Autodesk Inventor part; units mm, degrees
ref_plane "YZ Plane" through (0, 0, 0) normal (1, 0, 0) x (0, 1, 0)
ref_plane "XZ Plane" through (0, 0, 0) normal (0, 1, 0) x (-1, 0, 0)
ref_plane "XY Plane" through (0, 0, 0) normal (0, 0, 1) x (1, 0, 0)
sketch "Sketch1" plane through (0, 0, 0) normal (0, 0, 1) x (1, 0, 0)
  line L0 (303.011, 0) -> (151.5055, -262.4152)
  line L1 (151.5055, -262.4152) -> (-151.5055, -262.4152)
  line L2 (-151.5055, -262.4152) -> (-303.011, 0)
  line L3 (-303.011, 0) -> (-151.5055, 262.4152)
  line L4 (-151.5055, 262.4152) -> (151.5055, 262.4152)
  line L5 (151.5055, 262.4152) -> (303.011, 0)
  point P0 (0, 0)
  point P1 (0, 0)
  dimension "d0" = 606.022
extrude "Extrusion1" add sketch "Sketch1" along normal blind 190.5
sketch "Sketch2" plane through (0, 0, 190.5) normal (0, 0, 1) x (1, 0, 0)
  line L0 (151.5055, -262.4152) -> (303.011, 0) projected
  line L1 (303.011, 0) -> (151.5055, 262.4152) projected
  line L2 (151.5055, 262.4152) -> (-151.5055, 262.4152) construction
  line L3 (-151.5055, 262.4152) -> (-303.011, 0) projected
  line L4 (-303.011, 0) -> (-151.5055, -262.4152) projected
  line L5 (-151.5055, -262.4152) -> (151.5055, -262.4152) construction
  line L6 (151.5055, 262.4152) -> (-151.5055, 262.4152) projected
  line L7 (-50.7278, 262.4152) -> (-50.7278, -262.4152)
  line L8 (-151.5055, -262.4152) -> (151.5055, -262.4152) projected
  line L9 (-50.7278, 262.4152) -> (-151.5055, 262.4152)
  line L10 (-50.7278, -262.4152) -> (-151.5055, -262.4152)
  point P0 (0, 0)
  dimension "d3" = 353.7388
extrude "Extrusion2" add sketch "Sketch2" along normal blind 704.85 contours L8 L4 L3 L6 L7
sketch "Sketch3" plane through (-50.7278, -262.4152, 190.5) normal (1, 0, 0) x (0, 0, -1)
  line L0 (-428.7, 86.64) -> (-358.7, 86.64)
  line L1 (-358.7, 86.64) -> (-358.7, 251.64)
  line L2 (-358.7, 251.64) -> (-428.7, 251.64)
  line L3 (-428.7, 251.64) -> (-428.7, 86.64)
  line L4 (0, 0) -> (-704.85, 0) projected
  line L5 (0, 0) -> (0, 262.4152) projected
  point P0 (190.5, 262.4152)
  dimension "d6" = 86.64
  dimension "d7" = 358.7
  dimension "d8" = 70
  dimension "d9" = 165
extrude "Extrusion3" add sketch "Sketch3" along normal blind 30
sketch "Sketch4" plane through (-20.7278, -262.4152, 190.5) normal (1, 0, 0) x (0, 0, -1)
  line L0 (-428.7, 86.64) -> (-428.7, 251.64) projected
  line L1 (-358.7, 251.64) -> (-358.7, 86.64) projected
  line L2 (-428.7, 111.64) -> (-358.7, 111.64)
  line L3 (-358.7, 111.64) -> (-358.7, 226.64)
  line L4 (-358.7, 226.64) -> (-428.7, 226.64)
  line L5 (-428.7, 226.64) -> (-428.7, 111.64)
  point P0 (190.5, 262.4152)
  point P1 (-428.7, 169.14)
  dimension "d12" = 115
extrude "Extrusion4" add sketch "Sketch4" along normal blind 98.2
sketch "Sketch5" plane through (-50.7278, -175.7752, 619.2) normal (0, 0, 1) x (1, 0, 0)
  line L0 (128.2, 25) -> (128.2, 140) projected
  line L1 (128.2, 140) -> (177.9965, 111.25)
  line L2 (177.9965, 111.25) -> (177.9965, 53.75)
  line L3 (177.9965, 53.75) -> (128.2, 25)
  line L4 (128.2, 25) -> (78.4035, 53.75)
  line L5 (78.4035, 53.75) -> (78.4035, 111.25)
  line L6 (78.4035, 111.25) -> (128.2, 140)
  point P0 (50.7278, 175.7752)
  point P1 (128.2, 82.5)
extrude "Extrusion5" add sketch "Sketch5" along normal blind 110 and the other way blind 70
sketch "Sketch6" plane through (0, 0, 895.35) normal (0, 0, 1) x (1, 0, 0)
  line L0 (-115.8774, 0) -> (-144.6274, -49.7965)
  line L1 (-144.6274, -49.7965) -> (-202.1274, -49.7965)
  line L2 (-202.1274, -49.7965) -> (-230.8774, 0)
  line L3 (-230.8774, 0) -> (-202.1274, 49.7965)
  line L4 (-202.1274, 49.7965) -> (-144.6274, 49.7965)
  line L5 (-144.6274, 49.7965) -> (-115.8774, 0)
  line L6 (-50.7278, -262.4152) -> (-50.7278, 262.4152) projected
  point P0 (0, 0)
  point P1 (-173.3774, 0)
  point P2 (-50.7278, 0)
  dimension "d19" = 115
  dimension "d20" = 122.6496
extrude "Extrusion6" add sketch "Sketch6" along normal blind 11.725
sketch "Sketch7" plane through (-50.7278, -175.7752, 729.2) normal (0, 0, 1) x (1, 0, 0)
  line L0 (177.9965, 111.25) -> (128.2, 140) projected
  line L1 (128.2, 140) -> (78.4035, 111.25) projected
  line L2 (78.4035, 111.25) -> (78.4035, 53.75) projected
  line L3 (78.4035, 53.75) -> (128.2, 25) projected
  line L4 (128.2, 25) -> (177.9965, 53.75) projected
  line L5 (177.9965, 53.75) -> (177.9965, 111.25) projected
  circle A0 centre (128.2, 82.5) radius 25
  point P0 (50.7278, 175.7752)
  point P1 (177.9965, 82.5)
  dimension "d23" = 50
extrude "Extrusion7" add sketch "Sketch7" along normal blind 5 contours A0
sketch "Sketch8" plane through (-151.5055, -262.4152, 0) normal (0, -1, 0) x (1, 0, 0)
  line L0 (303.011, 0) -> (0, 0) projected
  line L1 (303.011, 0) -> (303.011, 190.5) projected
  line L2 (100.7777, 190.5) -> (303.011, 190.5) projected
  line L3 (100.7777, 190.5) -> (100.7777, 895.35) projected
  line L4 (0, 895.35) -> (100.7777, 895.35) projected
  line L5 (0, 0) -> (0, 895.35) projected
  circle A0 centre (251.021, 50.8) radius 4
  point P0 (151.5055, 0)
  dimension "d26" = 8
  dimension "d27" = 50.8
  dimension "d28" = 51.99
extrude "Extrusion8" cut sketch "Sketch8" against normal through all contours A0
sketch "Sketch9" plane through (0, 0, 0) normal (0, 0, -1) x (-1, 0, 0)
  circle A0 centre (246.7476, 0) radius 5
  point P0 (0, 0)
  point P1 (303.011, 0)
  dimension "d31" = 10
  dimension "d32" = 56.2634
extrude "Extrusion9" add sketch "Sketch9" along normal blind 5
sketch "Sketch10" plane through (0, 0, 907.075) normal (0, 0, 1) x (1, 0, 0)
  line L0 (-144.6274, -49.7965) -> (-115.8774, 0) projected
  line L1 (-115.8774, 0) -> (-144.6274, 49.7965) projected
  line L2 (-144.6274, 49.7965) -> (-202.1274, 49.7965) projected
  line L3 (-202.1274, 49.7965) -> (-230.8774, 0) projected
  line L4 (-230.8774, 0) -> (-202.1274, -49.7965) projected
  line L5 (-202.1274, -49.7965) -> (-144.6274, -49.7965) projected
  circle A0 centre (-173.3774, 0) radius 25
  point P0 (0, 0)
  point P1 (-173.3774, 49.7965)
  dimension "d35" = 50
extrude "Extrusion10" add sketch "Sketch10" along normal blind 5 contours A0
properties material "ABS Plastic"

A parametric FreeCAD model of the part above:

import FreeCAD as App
import Part
import Sketcher
from FreeCAD import Vector
Q = App.Units.Quantity


def add_polygon(sketch, points):
    """Adds a closed chain of lines whose ends are joined by coincident constraints."""
    first, n = sketch.GeometryCount, len(points)
    for a, b in zip(points, points[1:] + points[:1]):
        sketch.addGeometry(Part.LineSegment(App.Vector(*a, 0), App.Vector(*b, 0)), False)
    for i in range(n):
        sketch.addConstraint(Sketcher.Constraint("Coincident", first + i, 2, first + (i + 1) % n, 1))

doc = App.newDocument("Part")
params = doc.addObject("Spreadsheet::Sheet", "Params")
for row, (alias, value) in enumerate([
    ("pad1_length", "190.5 mm"),
    ("pad2_length", "704.85 mm"),
    ("sketch3_width", "165 mm"),
    ("sketch3_height", "70 mm"),
    ("pad3_length", "30 mm"),
    ("sketch4_width", "115 mm"),
    ("sketch4_height", "70 mm"),
    ("pad4_length", "98.2 mm"),
    ("sketch5_height", "57.5 mm"),
    ("pad5_length", "110 mm"),
    ("pad5_length2", "70 mm"),
    ("sketch6_width", "57.5 mm"),
    ("pad6_length", "11.725 mm"),
    ("sketch7_diameter", "50 mm"),
    ("pad7_length", "5 mm"),
    ("sketch8_diameter", "8 mm"),
    ("sketch9_diameter", "10 mm"),
    ("pad8_length", "5 mm"),
    ("sketch10_diameter", "50 mm"),
    ("pad9_length", "5 mm"),
], start=1):
    params.set(f"A{row}", alias)
    params.set(f"B{row}", "=" + value)
    params.setAlias(f"B{row}", alias)

body = doc.addObject("PartDesign::Body", "Body")

# Sketch on XY plane
sketch1 = body.newObject("Sketcher::SketchObject", "Sketch")
sketch1.AttachmentSupport = (doc.getObject("XY_Plane"), [""])
sketch1.MapMode = "FlatFace"
add_polygon(sketch1, [(151.5055, -262.4152), (303.011, 0), (151.5055, 262.4152), (-151.5055, 262.4152), (-303.011, 0), (-151.5055, -262.4152)])  # lines 0-5
sketch1.addConstraint(Sketcher.Constraint("Horizontal", 2))
sketch1.addConstraint(Sketcher.Constraint("Horizontal", 5))
sketch1.addConstraint(Sketcher.Constraint("Symmetric", 0, 2, 3, 2, -1, 1))
sketch1.addConstraint(Sketcher.Constraint("Symmetric", 1, 2, 4, 2, -1, 1))
sketch1.addConstraint(Sketcher.Constraint("PointOnObject", 0, 2, -1))
sketch1.addConstraint(Sketcher.Constraint("Parallel", 0, 3))
sketch1.addConstraint(Sketcher.Constraint("Vertical", 2, 2, 4, 2))
sketch1.addConstraint(Sketcher.Constraint("Angle", 0, Q("60 deg")))
sketch1.addConstraint(Sketcher.Constraint("DistanceX", 3, 2, 0, 2, Q("606.022 mm")))
sketch1.addConstraint(Sketcher.Constraint("DistanceX", 2, 2, 2, 1, Q("303.011 mm")))
pad1 = body.newObject("PartDesign::Pad", "Pad")
pad1.Profile = sketch1
pad1.setExpression("Length", "Params.pad1_length")

# Sketch on XY plane
sketch2 = body.newObject("Sketcher::SketchObject", "Sketch001")
sketch2.AttachmentSupport = (doc.getObject("XY_Plane"), [""])
sketch2.MapMode = "FlatFace"
sketch2.AttachmentOffset = App.Placement(Vector(0, 0, 190.5), App.Rotation())
add_polygon(sketch2, [(-151.5055, -262.4152), (-50.7278, -262.4152), (-50.7278, 262.4152), (-151.5055, 262.4152), (-303.011, 0)])  # lines 0-4
sketch2.addConstraint(Sketcher.Constraint("Horizontal", 0))
sketch2.addConstraint(Sketcher.Constraint("Vertical", 1))
sketch2.addConstraint(Sketcher.Constraint("Horizontal", 2))
sketch2.addConstraint(Sketcher.Constraint("Symmetric", 2, 2, 4, 2, -1))
sketch2.addConstraint(Sketcher.Constraint("PointOnObject", 3, 2, -1))
sketch2.addConstraint(Sketcher.Constraint("Angle", 3, Q("-120 deg")))
sketch2.addConstraint(Sketcher.Constraint("Distance", 3, Q("303.011 mm")))
sketch2.addConstraint(Sketcher.Constraint("DistanceX", 0, 1, 0, 2, Q("100.7777 mm")))
sketch2.addConstraint(Sketcher.Constraint("DistanceX", 3, 2, -1, 1, Q("303.011 mm")))
pad2 = body.newObject("PartDesign::Pad", "Pad001")
pad2.Profile = sketch2
pad2.setExpression("Length", "Params.pad2_length")

# Sketch on YZ plane
sketch3 = body.newObject("Sketcher::SketchObject", "Sketch002")
sketch3.AttachmentSupport = (doc.getObject("YZ_Plane"), [""])
sketch3.MapMode = "FlatFace"
sketch3.AttachmentOffset = App.Placement(Vector(0, 0, -50.7278), App.Rotation())
add_polygon(sketch3, [(-10.7752, 619.2), (-175.7752, 619.2), (-175.7752, 549.2), (-10.7752, 549.2)])  # lines 0-3
sketch3.addConstraint(Sketcher.Constraint("Horizontal", 0))
sketch3.addConstraint(Sketcher.Constraint("Vertical", 1))
sketch3.addConstraint(Sketcher.Constraint("Horizontal", 2))
sketch3.addConstraint(Sketcher.Constraint("Vertical", 3))
sketch3.addConstraint(Sketcher.Constraint("DistanceX", 0, 2, 0, 1, Q("165 mm")))
sketch3.addConstraint(Sketcher.Constraint("DistanceY", 1, 2, 1, 1, Q("70 mm")))
sketch3.addConstraint(Sketcher.Constraint("DistanceY", -1, 1, 0, 2, Q("619.2 mm")))
sketch3.addConstraint(Sketcher.Constraint("DistanceX", 0, 2, -1, 1, Q("175.7752 mm")))
sketch3.setExpression("Constraints[8]", "Params.sketch3_width")
sketch3.setExpression("Constraints[9]", "Params.sketch3_height")
pad3 = body.newObject("PartDesign::Pad", "Pad002")
pad3.Profile = sketch3
pad3.setExpression("Length", "Params.pad3_length")

# Sketch on YZ plane
sketch4 = body.newObject("Sketcher::SketchObject", "Sketch003")
sketch4.AttachmentSupport = (doc.getObject("YZ_Plane"), [""])
sketch4.MapMode = "FlatFace"
sketch4.AttachmentOffset = App.Placement(Vector(0, 0, -20.7278), App.Rotation())
add_polygon(sketch4, [(-35.7752, 619.2), (-150.7752, 619.2), (-150.7752, 549.2), (-35.7752, 549.2)])  # lines 0-3
sketch4.addConstraint(Sketcher.Constraint("Horizontal", 0))
sketch4.addConstraint(Sketcher.Constraint("Vertical", 1))
sketch4.addConstraint(Sketcher.Constraint("Horizontal", 2))
sketch4.addConstraint(Sketcher.Constraint("Vertical", 3))
sketch4.addConstraint(Sketcher.Constraint("DistanceX", 0, 2, 0, 1, Q("115 mm")))
sketch4.addConstraint(Sketcher.Constraint("DistanceY", 1, 2, 1, 1, Q("70 mm")))
sketch4.addConstraint(Sketcher.Constraint("DistanceY", -1, 1, 0, 2, Q("619.2 mm")))
sketch4.addConstraint(Sketcher.Constraint("DistanceX", 0, 2, -1, 1, Q("150.7752 mm")))
sketch4.setExpression("Constraints[8]", "Params.sketch4_width")
sketch4.setExpression("Constraints[9]", "Params.sketch4_height")
pad4 = body.newObject("PartDesign::Pad", "Pad003")
pad4.Profile = sketch4
pad4.setExpression("Length", "Params.pad4_length")

# Sketch on XY plane
sketch5 = body.newObject("Sketcher::SketchObject", "Sketch004")
sketch5.AttachmentSupport = (doc.getObject("XY_Plane"), [""])
sketch5.MapMode = "FlatFace"
sketch5.AttachmentOffset = App.Placement(Vector(0, 0, 619.2), App.Rotation())
add_polygon(sketch5, [(27.6757, -122.0252), (77.4722, -150.7752), (127.2687, -122.0252), (127.2687, -64.5252), (77.4722, -35.7752), (27.6757, -64.5252)])  # lines 0-5
sketch5.addConstraint(Sketcher.Constraint("Vertical", 2))
sketch5.addConstraint(Sketcher.Constraint("Vertical", 5))
sketch5.addConstraint(Sketcher.Constraint("Parallel", 0, 3))
sketch5.addConstraint(Sketcher.Constraint("Parallel", 1, 4))
sketch5.addConstraint(Sketcher.Constraint("Horizontal", 2, 2, 4, 2))
sketch5.addConstraint(Sketcher.Constraint("Horizontal", 1, 2, 5, 2))
sketch5.addConstraint(Sketcher.Constraint("Vertical", 0, 2, 3, 2))
sketch5.addConstraint(Sketcher.Constraint("Angle", 0, Q("-30 deg")))
sketch5.addConstraint(Sketcher.Constraint("DistanceY", 2, 1, 2, 2, Q("57.5 mm")))
sketch5.addConstraint(Sketcher.Constraint("DistanceY", 0, 2, 3, 2, Q("115 mm")))
sketch5.addConstraint(Sketcher.Constraint("DistanceX", -1, 1, 0, 2, Q("77.4722 mm")))
sketch5.addConstraint(Sketcher.Constraint("DistanceY", 0, 2, -1, 1, Q("150.7752 mm")))
sketch5.setExpression("Constraints[14]", "Params.sketch5_height")
pad5 = body.newObject("PartDesign::Pad", "Pad004")
pad5.Profile = sketch5
pad5.Type = "TwoLengths"
pad5.setExpression("Length", "Params.pad5_length")
pad5.setExpression("Length2", "Params.pad5_length2")

# Sketch on XY plane
sketch6 = body.newObject("Sketcher::SketchObject", "Sketch005")
sketch6.AttachmentSupport = (doc.getObject("XY_Plane"), [""])
sketch6.MapMode = "FlatFace"
sketch6.AttachmentOffset = App.Placement(Vector(0, 0, 895.35), App.Rotation())
add_polygon(sketch6, [(-144.6274, -49.7965), (-115.8774, 0), (-144.6274, 49.7965), (-202.1274, 49.7965), (-230.8774, 0), (-202.1274, -49.7965)])  # lines 0-5
sketch6.addConstraint(Sketcher.Constraint("Horizontal", 2))
sketch6.addConstraint(Sketcher.Constraint("Horizontal", 5))
sketch6.addConstraint(Sketcher.Constraint("Symmetric", 2, 2, 4, 2, -1))
sketch6.addConstraint(Sketcher.Constraint("PointOnObject", 0, 2, -1))
sketch6.addConstraint(Sketcher.Constraint("PointOnObject", 3, 2, -1))
sketch6.addConstraint(Sketcher.Constraint("Parallel", 0, 3))
sketch6.addConstraint(Sketcher.Constraint("Parallel", 1, 4))
sketch6.addConstraint(Sketcher.Constraint("DistanceX", 3, 2, 0, 2, Q("115 mm")))
sketch6.addConstraint(Sketcher.Constraint("Angle", 0, Q("60 deg")))
sketch6.addConstraint(Sketcher.Constraint("DistanceX", 2, 2, 2, 1, Q("57.5 mm")))
sketch6.addConstraint(Sketcher.Constraint("DistanceX", 0, 2, -1, 1, Q("115.8774 mm")))
sketch6.setExpression("Constraints[15]", "Params.sketch6_width")
pad6 = body.newObject("PartDesign::Pad", "Pad005")
pad6.Profile = sketch6
pad6.setExpression("Length", "Params.pad6_length")

# Sketch on XY plane
sketch7 = body.newObject("Sketcher::SketchObject", "Sketch006")
sketch7.AttachmentSupport = (doc.getObject("XY_Plane"), [""])
sketch7.MapMode = "FlatFace"
sketch7.AttachmentOffset = App.Placement(Vector(0, 0, 729.2), App.Rotation())
sketch7.addGeometry(Part.Circle(Vector(77.4722, -93.2752, 0), Vector(0, 0, 1), 25), False)
sketch7.addConstraint(Sketcher.Constraint("Diameter", 0, Q("50 mm")))
sketch7.addConstraint(Sketcher.Constraint("DistanceX", -1, 1, 0, 3, Q("77.4722 mm")))
sketch7.addConstraint(Sketcher.Constraint("DistanceY", 0, 3, -1, 1, Q("93.2752 mm")))
sketch7.setExpression("Constraints[0]", "Params.sketch7_diameter")
pad7 = body.newObject("PartDesign::Pad", "Pad006")
pad7.Profile = sketch7
pad7.setExpression("Length", "Params.pad7_length")

# Sketch on XZ plane
sketch8 = body.newObject("Sketcher::SketchObject", "Sketch007")
sketch8.AttachmentSupport = (doc.getObject("XZ_Plane"), [""])
sketch8.MapMode = "FlatFace"
sketch8.AttachmentOffset = App.Placement(Vector(0, 0, 262.4152), App.Rotation())
sketch8.addGeometry(Part.Circle(Vector(99.5155, 50.8, 0), Vector(0, 0, 1), 4), False)
sketch8.addConstraint(Sketcher.Constraint("Diameter", 0, Q("8 mm")))
sketch8.addConstraint(Sketcher.Constraint("DistanceY", -1, 1, 0, 3, Q("50.8 mm")))
sketch8.addConstraint(Sketcher.Constraint("DistanceX", -1, 1, 0, 3, Q("99.5155 mm")))
sketch8.setExpression("Constraints[0]", "Params.sketch8_diameter")
pocket1 = body.newObject("PartDesign::Pocket", "Pocket")
pocket1.Profile = sketch8
pocket1.Type = "ThroughAll"

# Sketch on XY plane
sketch9 = body.newObject("Sketcher::SketchObject", "Sketch008")
sketch9.AttachmentSupport = (doc.getObject("XY_Plane"), [""])
sketch9.MapMode = "FlatFace"
sketch9.addGeometry(Part.Circle(Vector(-246.7476, 0, 0), Vector(0, 0, 1), 5), False)
sketch9.addConstraint(Sketcher.Constraint("PointOnObject", 0, 3, -1))
sketch9.addConstraint(Sketcher.Constraint("Diameter", 0, Q("10 mm")))
sketch9.addConstraint(Sketcher.Constraint("DistanceX", 0, 3, -1, 1, Q("246.7476 mm")))
sketch9.setExpression("Constraints[1]", "Params.sketch9_diameter")
pad8 = body.newObject("PartDesign::Pad", "Pad007")
pad8.Profile = sketch9
pad8.setExpression("Length", "Params.pad8_length")
pad8.Reversed = True

# Sketch on XY plane
sketch10 = body.newObject("Sketcher::SketchObject", "Sketch009")
sketch10.AttachmentSupport = (doc.getObject("XY_Plane"), [""])
sketch10.MapMode = "FlatFace"
sketch10.AttachmentOffset = App.Placement(Vector(0, 0, 907.075), App.Rotation())
sketch10.addGeometry(Part.Circle(Vector(-173.3774, 0, 0), Vector(0, 0, 1), 25), False)
sketch10.addConstraint(Sketcher.Constraint("PointOnObject", 0, 3, -1))
sketch10.addConstraint(Sketcher.Constraint("Diameter", 0, Q("50 mm")))
sketch10.addConstraint(Sketcher.Constraint("DistanceX", 0, 3, -1, 1, Q("173.3774 mm")))
sketch10.setExpression("Constraints[1]", "Params.sketch10_diameter")
pad9 = body.newObject("PartDesign::Pad", "Pad008")
pad9.Profile = sketch10
pad9.setExpression("Length", "Params.pad9_length")

doc.recompute()
